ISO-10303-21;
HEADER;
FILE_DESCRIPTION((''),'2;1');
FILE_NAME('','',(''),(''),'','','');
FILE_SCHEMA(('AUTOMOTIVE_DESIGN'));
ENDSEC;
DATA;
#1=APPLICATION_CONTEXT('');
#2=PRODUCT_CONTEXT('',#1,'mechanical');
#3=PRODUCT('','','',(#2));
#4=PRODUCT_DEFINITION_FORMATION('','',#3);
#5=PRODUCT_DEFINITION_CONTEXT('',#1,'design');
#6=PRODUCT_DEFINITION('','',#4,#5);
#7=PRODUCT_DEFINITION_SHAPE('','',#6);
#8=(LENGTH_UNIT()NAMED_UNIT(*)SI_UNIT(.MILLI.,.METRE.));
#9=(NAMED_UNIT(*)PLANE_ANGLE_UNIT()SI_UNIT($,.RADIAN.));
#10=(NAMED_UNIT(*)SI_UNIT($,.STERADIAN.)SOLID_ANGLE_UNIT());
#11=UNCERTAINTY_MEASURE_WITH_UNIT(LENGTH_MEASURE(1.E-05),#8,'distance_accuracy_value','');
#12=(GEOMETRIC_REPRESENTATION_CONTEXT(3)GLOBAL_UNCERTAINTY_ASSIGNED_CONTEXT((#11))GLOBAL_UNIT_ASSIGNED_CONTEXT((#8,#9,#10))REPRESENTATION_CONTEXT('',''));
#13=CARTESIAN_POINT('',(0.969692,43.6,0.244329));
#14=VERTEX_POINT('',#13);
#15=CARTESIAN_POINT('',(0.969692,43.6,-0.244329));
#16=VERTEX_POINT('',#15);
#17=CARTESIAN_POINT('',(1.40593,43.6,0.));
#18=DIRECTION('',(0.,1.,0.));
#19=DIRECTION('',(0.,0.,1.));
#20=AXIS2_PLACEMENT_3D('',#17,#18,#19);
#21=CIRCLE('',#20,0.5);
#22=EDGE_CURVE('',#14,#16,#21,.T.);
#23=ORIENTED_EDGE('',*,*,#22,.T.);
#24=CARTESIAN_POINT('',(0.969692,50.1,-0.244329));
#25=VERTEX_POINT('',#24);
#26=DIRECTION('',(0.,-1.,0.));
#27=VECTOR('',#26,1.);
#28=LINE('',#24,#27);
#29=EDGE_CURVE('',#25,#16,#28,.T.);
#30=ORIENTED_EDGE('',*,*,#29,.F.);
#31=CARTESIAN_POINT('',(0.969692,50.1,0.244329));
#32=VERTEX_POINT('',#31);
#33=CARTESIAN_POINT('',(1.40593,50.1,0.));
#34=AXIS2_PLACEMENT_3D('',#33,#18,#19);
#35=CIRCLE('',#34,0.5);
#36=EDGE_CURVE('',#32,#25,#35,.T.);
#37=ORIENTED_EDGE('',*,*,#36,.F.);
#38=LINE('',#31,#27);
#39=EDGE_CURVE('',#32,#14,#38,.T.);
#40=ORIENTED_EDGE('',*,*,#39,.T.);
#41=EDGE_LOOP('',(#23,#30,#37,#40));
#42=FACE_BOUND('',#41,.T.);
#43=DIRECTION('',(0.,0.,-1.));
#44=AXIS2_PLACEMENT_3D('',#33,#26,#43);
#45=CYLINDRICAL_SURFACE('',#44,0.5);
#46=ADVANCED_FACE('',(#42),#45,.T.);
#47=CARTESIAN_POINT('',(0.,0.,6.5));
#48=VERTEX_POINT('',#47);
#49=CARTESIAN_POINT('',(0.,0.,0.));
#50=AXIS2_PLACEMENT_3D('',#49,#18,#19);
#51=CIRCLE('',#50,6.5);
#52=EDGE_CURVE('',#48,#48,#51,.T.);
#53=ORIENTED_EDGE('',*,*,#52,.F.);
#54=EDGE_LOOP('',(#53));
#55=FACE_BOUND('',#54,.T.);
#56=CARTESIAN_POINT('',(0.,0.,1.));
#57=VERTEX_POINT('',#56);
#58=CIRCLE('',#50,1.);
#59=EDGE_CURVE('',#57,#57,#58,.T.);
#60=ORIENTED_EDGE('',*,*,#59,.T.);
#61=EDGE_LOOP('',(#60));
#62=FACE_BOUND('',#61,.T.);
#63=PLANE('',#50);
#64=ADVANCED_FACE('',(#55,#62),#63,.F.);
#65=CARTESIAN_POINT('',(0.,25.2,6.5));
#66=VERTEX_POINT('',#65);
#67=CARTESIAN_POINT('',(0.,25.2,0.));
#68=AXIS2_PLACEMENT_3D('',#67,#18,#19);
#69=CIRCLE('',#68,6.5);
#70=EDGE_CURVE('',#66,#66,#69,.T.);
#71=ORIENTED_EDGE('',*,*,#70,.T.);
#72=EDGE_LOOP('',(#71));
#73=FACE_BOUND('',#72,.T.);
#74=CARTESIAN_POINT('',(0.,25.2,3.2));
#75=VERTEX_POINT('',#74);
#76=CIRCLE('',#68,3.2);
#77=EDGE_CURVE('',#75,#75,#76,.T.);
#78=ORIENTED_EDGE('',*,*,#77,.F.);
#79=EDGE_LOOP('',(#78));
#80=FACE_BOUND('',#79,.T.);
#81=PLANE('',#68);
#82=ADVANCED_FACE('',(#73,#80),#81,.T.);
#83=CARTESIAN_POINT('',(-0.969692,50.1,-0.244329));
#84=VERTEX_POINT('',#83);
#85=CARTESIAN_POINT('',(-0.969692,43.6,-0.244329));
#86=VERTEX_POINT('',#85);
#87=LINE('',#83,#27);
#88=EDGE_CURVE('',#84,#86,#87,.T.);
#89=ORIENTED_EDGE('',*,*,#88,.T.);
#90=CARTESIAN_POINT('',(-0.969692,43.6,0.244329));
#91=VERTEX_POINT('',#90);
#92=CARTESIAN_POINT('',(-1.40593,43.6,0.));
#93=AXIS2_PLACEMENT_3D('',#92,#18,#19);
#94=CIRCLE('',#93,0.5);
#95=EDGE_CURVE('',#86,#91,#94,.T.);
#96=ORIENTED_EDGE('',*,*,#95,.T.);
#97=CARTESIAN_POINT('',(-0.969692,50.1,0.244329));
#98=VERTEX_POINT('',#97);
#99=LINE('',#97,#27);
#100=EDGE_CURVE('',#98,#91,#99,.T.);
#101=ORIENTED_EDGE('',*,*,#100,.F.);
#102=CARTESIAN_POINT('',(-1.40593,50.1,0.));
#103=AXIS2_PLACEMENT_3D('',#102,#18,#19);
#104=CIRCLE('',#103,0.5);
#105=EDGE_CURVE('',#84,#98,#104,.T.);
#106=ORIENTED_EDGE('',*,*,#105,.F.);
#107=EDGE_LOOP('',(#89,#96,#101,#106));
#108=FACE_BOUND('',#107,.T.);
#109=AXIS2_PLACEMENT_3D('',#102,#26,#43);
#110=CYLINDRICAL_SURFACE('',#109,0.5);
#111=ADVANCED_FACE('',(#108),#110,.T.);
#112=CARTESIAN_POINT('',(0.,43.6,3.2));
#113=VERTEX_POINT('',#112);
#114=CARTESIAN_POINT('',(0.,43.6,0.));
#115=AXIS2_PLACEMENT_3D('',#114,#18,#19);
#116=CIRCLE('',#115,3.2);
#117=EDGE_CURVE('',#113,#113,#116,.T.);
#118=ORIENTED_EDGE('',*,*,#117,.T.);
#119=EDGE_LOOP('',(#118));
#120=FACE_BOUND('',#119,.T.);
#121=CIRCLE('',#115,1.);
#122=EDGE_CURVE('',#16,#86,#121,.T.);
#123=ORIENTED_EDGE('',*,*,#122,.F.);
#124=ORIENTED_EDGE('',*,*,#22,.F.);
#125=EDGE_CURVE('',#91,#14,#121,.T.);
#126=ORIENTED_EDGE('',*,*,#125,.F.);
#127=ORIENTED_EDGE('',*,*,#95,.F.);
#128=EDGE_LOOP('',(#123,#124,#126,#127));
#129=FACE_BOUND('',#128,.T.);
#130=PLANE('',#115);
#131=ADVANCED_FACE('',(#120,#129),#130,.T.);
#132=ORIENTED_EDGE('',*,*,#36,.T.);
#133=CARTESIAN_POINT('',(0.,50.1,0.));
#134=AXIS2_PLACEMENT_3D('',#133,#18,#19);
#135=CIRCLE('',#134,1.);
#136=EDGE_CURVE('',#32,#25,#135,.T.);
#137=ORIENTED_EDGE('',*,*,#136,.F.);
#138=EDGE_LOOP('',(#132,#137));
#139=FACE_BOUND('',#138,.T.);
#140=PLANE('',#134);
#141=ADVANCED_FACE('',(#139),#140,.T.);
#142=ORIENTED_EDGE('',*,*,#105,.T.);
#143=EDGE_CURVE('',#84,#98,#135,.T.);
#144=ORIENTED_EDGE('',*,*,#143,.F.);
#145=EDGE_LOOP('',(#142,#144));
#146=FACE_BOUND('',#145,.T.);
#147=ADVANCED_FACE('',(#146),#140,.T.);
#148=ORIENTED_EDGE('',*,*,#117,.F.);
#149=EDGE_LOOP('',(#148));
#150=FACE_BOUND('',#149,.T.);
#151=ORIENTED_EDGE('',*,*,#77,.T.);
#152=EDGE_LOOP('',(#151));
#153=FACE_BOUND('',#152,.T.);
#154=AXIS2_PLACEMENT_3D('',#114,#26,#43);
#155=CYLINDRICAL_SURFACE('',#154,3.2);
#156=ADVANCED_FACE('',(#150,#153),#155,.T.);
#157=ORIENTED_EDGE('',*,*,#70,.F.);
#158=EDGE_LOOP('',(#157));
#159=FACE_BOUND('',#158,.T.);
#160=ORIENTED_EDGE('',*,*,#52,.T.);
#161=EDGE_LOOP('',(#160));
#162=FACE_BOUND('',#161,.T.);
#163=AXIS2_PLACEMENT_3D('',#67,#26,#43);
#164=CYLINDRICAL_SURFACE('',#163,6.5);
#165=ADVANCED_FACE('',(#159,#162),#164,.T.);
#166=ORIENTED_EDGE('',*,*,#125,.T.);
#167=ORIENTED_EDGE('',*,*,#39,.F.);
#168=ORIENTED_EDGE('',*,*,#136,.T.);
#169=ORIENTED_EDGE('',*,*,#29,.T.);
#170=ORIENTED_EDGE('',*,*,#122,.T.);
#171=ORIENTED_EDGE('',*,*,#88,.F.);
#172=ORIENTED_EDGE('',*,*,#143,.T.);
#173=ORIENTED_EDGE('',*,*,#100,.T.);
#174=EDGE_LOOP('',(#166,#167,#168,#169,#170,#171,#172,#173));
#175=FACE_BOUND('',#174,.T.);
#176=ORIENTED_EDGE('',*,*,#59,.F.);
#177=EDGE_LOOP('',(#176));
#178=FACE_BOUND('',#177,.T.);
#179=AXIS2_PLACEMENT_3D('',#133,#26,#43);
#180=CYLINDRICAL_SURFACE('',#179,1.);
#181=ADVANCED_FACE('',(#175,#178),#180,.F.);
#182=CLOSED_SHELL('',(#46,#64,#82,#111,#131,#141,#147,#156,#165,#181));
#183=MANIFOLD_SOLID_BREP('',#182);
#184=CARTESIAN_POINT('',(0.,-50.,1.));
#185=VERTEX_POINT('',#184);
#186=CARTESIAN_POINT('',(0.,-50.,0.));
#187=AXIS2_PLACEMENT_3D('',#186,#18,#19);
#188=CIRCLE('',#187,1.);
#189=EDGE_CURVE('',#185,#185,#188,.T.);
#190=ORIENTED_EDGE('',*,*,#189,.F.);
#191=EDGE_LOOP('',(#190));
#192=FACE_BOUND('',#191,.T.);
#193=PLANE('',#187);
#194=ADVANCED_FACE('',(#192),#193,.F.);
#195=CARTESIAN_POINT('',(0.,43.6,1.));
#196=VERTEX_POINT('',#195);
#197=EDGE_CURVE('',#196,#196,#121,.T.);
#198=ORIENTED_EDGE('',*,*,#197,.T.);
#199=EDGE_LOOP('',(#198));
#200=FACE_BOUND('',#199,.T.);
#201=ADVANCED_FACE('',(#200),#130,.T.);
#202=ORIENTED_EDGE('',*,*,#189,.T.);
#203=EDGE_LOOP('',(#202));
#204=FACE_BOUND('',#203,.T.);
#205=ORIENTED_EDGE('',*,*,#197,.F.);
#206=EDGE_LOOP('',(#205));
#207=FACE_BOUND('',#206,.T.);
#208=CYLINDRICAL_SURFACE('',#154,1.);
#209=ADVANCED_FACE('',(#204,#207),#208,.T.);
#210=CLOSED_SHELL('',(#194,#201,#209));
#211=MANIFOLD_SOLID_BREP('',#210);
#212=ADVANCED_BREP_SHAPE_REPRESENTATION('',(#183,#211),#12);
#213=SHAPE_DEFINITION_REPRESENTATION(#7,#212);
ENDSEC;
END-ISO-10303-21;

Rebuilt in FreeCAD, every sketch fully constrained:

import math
import FreeCAD as App
import Part
import Sketcher

V = App.Vector
Q = App.Units.Quantity

doc = App.newDocument("Part")
body = doc.addObject("PartDesign::Body", "Body")

# Sketch on XZ plane
sketch1 = body.newObject("Sketcher::SketchObject", "Sketch")
sketch1.AttachmentSupport = (doc.getObject("XZ_Plane"), [""])
sketch1.MapMode = "FlatFace"
sketch1.addGeometry(Part.ArcOfCircle(Part.Circle(V(1.41, 0, 0), V(0, 0, 1), 0.5), math.radians(-151), math.radians(151)), False)
sketch1.addGeometry(Part.ArcOfCircle(Part.Circle(V(0, 0, 0), V(0, 0, 1), 1), math.radians(-14), math.radians(14)), False)
sketch1.addConstraint(Sketcher.Constraint("Coincident", 0, 1, 1, 1))
sketch1.addConstraint(Sketcher.Constraint("Coincident", 1, 2, 0, 2))
sketch1.addConstraint(Sketcher.Constraint("Coincident", 1, 3, -1, 1))
sketch1.addConstraint(Sketcher.Constraint("PointOnObject", 0, 3, -1))
sketch1.addConstraint(Sketcher.Constraint("Radius", 1, Q("1 mm")))
sketch1.addConstraint(Sketcher.Constraint("Radius", 0, Q("0.5 mm")))
sketch1.addConstraint(Sketcher.Constraint("DistanceX", -1, 1, 0, 3, Q("1.40593 mm")))
pad1 = body.newObject("PartDesign::Pad", "Pad")
pad1.Profile = sketch1
pad1.Length = 50.1
pad1.Reversed = True
body2 = doc.addObject("PartDesign::Body", "Body001")

# Sketch on XZ plane
sketch2 = body2.newObject("Sketcher::SketchObject", "Sketch001")
sketch2.AttachmentSupport = (doc.getObject("XZ_Plane001"), [""])
sketch2.MapMode = "FlatFace"
sketch2.addGeometry(Part.ArcOfCircle(Part.Circle(V(0, 0, 0), V(0, 0, 1), 1), math.radians(166), math.radians(194)), False)
sketch2.addGeometry(Part.ArcOfCircle(Part.Circle(V(-1.41, 0, 0), V(0, 0, 1), 0.5), math.radians(29), math.radians(331)), False)
sketch2.addConstraint(Sketcher.Constraint("Coincident", 0, 1, 1, 1))
sketch2.addConstraint(Sketcher.Constraint("Coincident", 1, 2, 0, 2))
sketch2.addConstraint(Sketcher.Constraint("Coincident", 0, 3, -1, 1))
sketch2.addConstraint(Sketcher.Constraint("PointOnObject", 1, 3, -1))
sketch2.addConstraint(Sketcher.Constraint("Radius", 0, Q("1 mm")))
sketch2.addConstraint(Sketcher.Constraint("Radius", 1, Q("0.5 mm")))
sketch2.addConstraint(Sketcher.Constraint("DistanceX", 1, 3, -1, 1, Q("1.40593 mm")))
pad2 = body2.newObject("PartDesign::Pad", "Pad001")
pad2.Profile = sketch2
pad2.Length = 50.1
pad2.Reversed = True
body.AllowCompound = True
doc.recompute()

boolean = body.newObject("PartDesign::Boolean", "Boolean")
boolean.Type = "Fuse"
boolean.addObjects([body2])

# Sketch on XZ plane
sketch3 = body.newObject("Sketcher::SketchObject", "Sketch002")
sketch3.AttachmentSupport = (doc.getObject("XZ_Plane"), [""])
sketch3.MapMode = "FlatFace"
sketch3.addGeometry(Part.Circle(V(0, 0, 0), V(0, 0, 1), 3.2), False)
sketch3.addGeometry(Part.ArcOfCircle(Part.Circle(V(0, 0, 0), V(0, 0, 1), 1), math.radians(-166), math.radians(-14)), False)
sketch3.addGeometry(Part.ArcOfCircle(Part.Circle(V(1.41, 0, 0), V(0, 0, 1), 0.5), math.radians(-151), math.radians(0)), False)
sketch3.addGeometry(Part.ArcOfCircle(Part.Circle(V(1.41, 0, 0), V(0, 0, 1), 0.5), math.radians(0), math.radians(151)), False)
sketch3.addGeometry(Part.ArcOfCircle(Part.Circle(V(0, 0, 0), V(0, 0, 1), 1), math.radians(14), math.radians(166)), False)
sketch3.addGeometry(Part.ArcOfCircle(Part.Circle(V(-1.41, 0, 0), V(0, 0, 1), 0.5), math.radians(29), math.radians(331)), False)
sketch3.addConstraint(Sketcher.Constraint("Coincident", 1, 2, 2, 1))
sketch3.addConstraint(Sketcher.Constraint("Tangent", 2, 2, 3, 1))
sketch3.addConstraint(Sketcher.Constraint("Coincident", 3, 2, 4, 1))
sketch3.addConstraint(Sketcher.Constraint("Coincident", 4, 2, 5, 1))
sketch3.addConstraint(Sketcher.Constraint("Coincident", 5, 2, 1, 1))
sketch3.addConstraint(Sketcher.Constraint("Coincident", 0, 3, -1, 1))
sketch3.addConstraint(Sketcher.Constraint("Coincident", 1, 3, -1, 1))
sketch3.addConstraint(Sketcher.Constraint("Coincident", 4, 3, -1, 1))
sketch3.addConstraint(Sketcher.Constraint("Equal", 2, 3))
sketch3.addConstraint(Sketcher.Constraint("Equal", 1, 4))
sketch3.addConstraint(Sketcher.Constraint("Equal", 3, 5))
sketch3.addConstraint(Sketcher.Constraint("Symmetric", 2, 3, 5, 3, -1, 1))
sketch3.addConstraint(Sketcher.Constraint("PointOnObject", 2, 3, -1))
sketch3.addConstraint(Sketcher.Constraint("PointOnObject", 2, 2, -1))
sketch3.addConstraint(Sketcher.Constraint("Radius", 1, Q("1 mm")))
sketch3.addConstraint(Sketcher.Constraint("Diameter", 0, Q("6.4 mm")))
sketch3.addConstraint(Sketcher.Constraint("Radius", 2, Q("0.5 mm")))
sketch3.addConstraint(Sketcher.Constraint("DistanceX", -1, 1, 2, 3, Q("1.40593 mm")))
pad3 = body.newObject("PartDesign::Pad", "Pad002")
pad3.Profile = sketch3
pad3.Length = 43.6
pad3.Reversed = True

# Sketch on XZ plane
sketch4 = body.newObject("Sketcher::SketchObject", "Sketch003")
sketch4.AttachmentSupport = (doc.getObject("XZ_Plane"), [""])
sketch4.MapMode = "FlatFace"
sketch4.addGeometry(Part.Circle(V(0, 0, 0), V(0, 0, 1), 6.5), False)
sketch4.addGeometry(Part.Circle(V(0, 0, 0), V(0, 0, 1), 3.2), False)
sketch4.addConstraint(Sketcher.Constraint("Coincident", 0, 3, -1, 1))
sketch4.addConstraint(Sketcher.Constraint("Coincident", 1, 3, -1, 1))
sketch4.addConstraint(Sketcher.Constraint("Diameter", 0, Q("13 mm")))
sketch4.addConstraint(Sketcher.Constraint("Diameter", 1, Q("6.4 mm")))
pad4 = body.newObject("PartDesign::Pad", "Pad003")
pad4.Profile = sketch4
pad4.Length = 25.2
pad4.Reversed = True
body3 = doc.addObject("PartDesign::Body", "Body002")

# Sketch on XZ plane
sketch5 = body3.newObject("Sketcher::SketchObject", "Sketch004")
sketch5.AttachmentSupport = (doc.getObject("XZ_Plane002"), [""])
sketch5.MapMode = "FlatFace"
sketch5.addGeometry(Part.Circle(V(0, 0, 0), V(0, 0, 1), 1), False)
sketch5.addConstraint(Sketcher.Constraint("Coincident", 0, 3, -1, 1))
sketch5.addConstraint(Sketcher.Constraint("Diameter", 0, Q("2 mm")))
pad5 = body3.newObject("PartDesign::Pad", "Pad004")
pad5.Profile = sketch5
pad5.Type = "TwoLengths"
pad5.Length = 43.6
pad5.Length2 = 50
pad5.Reversed = True

doc.recompute()
